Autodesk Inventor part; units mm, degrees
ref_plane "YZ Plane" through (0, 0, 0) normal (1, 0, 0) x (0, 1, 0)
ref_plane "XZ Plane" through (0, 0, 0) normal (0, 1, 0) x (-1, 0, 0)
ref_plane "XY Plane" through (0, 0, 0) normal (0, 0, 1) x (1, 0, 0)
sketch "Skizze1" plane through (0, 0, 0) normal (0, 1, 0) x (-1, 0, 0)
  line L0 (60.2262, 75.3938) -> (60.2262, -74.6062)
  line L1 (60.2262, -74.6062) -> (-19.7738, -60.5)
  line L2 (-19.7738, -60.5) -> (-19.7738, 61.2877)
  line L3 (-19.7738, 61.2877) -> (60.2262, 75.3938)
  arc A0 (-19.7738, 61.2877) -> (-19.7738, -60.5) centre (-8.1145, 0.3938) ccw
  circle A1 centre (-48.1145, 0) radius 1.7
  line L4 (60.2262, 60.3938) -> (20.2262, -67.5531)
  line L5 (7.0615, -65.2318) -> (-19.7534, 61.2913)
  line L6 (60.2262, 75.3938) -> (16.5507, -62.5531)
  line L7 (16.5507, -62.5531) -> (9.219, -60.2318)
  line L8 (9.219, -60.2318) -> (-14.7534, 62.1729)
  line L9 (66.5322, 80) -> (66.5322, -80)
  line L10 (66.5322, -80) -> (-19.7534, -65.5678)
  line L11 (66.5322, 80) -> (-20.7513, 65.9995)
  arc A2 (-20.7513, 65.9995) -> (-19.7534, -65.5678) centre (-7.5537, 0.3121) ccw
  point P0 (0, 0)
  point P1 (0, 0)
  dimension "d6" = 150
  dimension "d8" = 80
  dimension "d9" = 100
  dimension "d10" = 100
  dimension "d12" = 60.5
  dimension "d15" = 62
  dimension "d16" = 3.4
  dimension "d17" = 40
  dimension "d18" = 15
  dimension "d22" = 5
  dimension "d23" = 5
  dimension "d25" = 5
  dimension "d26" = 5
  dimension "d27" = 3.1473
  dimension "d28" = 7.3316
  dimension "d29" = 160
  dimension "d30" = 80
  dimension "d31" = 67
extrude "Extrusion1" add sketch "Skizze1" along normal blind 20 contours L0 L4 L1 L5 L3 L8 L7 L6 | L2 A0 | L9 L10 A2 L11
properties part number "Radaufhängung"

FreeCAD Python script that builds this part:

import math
import FreeCAD as App
import Part
import Sketcher

V = App.Vector
Q = App.Units.Quantity


def add_polygon(sketch, points):
    """Adds a closed chain of lines whose ends are joined by coincident constraints."""
    first, n = sketch.GeometryCount, len(points)
    for a, b in zip(points, points[1:] + points[:1]):
        sketch.addGeometry(Part.LineSegment(App.Vector(*a, 0), App.Vector(*b, 0)), False)
    for i in range(n):
        sketch.addConstraint(Sketcher.Constraint("Coincident", first + i, 2, first + (i + 1) % n, 1))

doc = App.newDocument("Part")
body = doc.addObject("PartDesign::Body", "Body")

# Sketch on XZ plane
sketch1 = doc.addObject("Sketcher::SketchObject", "Sketch")
body.addObject(sketch1)
sketch1.AttachmentSupport = (doc.XZ_Plane, [""])
sketch1.MapMode = "FlatFace"
sketch1.addGeometry(Part.LineSegment(V(-66.532, -80, 0), V(-66.532, 80, 0)), False)  # 0
sketch1.addGeometry(Part.LineSegment(V(-66.532, 80, 0), V(20.751, 65.999, 0)), False)  # 1
sketch1.addGeometry(Part.ArcOfCircle(Part.Circle(V(7.554, 0.312, 0), V(0, 0, 1), 67), math.radians(-80), math.radians(79)), False)  # 2
sketch1.addGeometry(Part.LineSegment(V(19.753, -65.568, 0), V(-66.532, -80, 0)), False)  # 3
add_polygon(sketch1, [(-20.226, -67.553), (-60.226, 60.394), (-60.226, -74.606)])  # lines 4-6
add_polygon(sketch1, [(19.753, 61.291), (-7.061, -65.232), (19.774, -60.5), (19.774, 61.288)])  # lines 7-10
add_polygon(sketch1, [(-9.219, -60.232), (14.753, 62.173), (-60.226, 75.394), (-16.551, -62.553)])  # lines 11-14
sketch1.addGeometry(Part.Circle(V(48.114, 0, 0), V(0, 0, 1), 1.7), False)  # 15
sketch1.addConstraint(Sketcher.Constraint("Coincident", 0, 2, 1, 1))
sketch1.addConstraint(Sketcher.Constraint("Coincident", 1, 2, 2, 2))
sketch1.addConstraint(Sketcher.Constraint("Coincident", 2, 1, 3, 1))
sketch1.addConstraint(Sketcher.Constraint("Coincident", 3, 2, 0, 1))
sketch1.addConstraint(Sketcher.Constraint("Vertical", 0))
sketch1.addConstraint(Sketcher.Constraint("Vertical", 5))
sketch1.addConstraint(Sketcher.Constraint("Vertical", 9))
sketch1.addConstraint(Sketcher.Constraint("PointOnObject", 15, 3, -1))
sketch1.addConstraint(Sketcher.Constraint("Parallel", 6, 8))
sketch1.addConstraint(Sketcher.Constraint("Parallel", 10, 12))
sketch1.addConstraint(Sketcher.Constraint("Perpendicular", 13, 14))
sketch1.addConstraint(Sketcher.Constraint("Vertical", 2, 1, 10, 2))
sketch1.addConstraint(Sketcher.Constraint("Vertical", 5, 2, 12, 2))
sketch1.addConstraint(Sketcher.Constraint("Radius", 2, Q("67 mm")))
sketch1.addConstraint(Sketcher.Constraint("Diameter", 15, Q("3.4 mm")))
sketch1.addConstraint(Sketcher.Constraint("DistanceY", 0, 1, 0, 2, Q("160 mm")))
sketch1.addConstraint(Sketcher.Constraint("DistanceY", -1, 1, 0, 2, Q("80 mm")))
sketch1.addConstraint(Sketcher.Constraint("DistanceX", 5, 2, 6, 2, Q("40 mm")))
sketch1.addConstraint(Sketcher.Constraint("DistanceX", 6, 2, 8, 2, Q("40 mm")))
sketch1.addConstraint(Sketcher.Constraint("DistanceX", 11, 2, 10, 2, Q("5 mm")))
sketch1.addConstraint(Sketcher.Constraint("DistanceY", 4, 2, 12, 2, Q("15 mm")))
sketch1.addConstraint(Sketcher.Constraint("DistanceY", 6, 2, 13, 2, Q("5 mm")))
sketch1.addConstraint(Sketcher.Constraint("DistanceY", 7, 2, 14, 2, Q("5 mm")))
sketch1.addConstraint(Sketcher.Constraint("DistanceY", 8, 2, -1, 1, Q("60.5 mm")))
sketch1.addConstraint(Sketcher.Constraint("DistanceY", 5, 2, 5, 1, Q("135 mm")))
sketch1.addConstraint(Sketcher.Constraint("Angle", 6, Q("10 deg")))
sketch1.addConstraint(Sketcher.Constraint("Angle", 12, Q("170 deg")))
sketch1.addConstraint(Sketcher.Constraint("Angle", 11, Q("78.9191 deg")))
sketch1.addConstraint(Sketcher.Constraint("DistanceX", 13, 2, 14, 2, Q("7.3317 mm")))
sketch1.addConstraint(Sketcher.Constraint("Distance", 11, Q("124.73 mm")))
sketch1.addConstraint(Sketcher.Constraint("DistanceY", 2, 1, 2, 3, Q("65.88 mm")))
sketch1.addConstraint(Sketcher.Constraint("DistanceY", 9, 1, 9, 2, Q("121.7877 mm")))
sketch1.addConstraint(Sketcher.Constraint("DistanceY", -1, 1, 2, 3, Q("0.312 mm")))
sketch1.addConstraint(Sketcher.Constraint("DistanceY", 6, 2, -1, 1, Q("67.553 mm")))
sketch1.addConstraint(Sketcher.Constraint("DistanceX", 14, 2, -1, 1, Q("9.219 mm")))
sketch1.addConstraint(Sketcher.Constraint("DistanceX", 0, 2, 2, 3, Q("74.086 mm")))
sketch1.addConstraint(Sketcher.Constraint("DistanceX", 2, 1, 15, 3, Q("28.361 mm")))
sketch1.addConstraint(Sketcher.Constraint("DistanceX", 10, 2, 1, 2, Q("0.998 mm")))
pad1 = doc.addObject("PartDesign::Pad", "Pad")
body.addObject(pad1)
pad1.Profile = sketch1
pad1.Length = 20
pad1.Reversed = True

doc.recompute()
